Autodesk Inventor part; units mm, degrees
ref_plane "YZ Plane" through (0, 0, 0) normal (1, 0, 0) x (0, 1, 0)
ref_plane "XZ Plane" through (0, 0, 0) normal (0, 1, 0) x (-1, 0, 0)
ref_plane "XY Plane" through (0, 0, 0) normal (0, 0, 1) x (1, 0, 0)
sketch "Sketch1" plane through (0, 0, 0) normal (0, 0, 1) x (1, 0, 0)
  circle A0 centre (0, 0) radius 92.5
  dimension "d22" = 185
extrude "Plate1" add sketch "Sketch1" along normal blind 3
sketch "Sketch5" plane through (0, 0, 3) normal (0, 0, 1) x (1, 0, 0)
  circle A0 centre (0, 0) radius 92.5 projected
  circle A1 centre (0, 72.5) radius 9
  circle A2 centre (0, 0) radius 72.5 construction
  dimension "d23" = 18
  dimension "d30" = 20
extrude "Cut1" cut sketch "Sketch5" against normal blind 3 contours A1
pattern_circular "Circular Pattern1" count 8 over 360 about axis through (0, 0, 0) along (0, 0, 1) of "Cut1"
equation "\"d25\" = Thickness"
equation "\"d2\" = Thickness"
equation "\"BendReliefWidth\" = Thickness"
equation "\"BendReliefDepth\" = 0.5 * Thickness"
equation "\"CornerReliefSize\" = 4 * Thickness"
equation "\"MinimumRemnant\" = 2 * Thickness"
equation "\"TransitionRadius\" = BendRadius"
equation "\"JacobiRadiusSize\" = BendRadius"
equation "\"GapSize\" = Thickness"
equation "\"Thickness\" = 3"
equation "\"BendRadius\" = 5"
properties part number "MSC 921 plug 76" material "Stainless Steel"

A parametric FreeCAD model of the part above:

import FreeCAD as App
import Part
import Sketcher

V = App.Vector

doc = App.newDocument("Part")
body = doc.addObject("PartDesign::Body", "Body")

sketch1 = doc.addObject("Sketcher::SketchObject", "Sketch")
body.addObject(sketch1)
sketch1.AttachmentSupport = (doc.XY_Plane, [""])
sketch1.MapMode = "FlatFace"
sketch1.addGeometry(Part.Circle(V(0, 0, 0), V(0, 0, 1), 92.5), False)
sketch1.addConstraint([
    Sketcher.Constraint("Coincident", 0, 3, -1, 1),
    Sketcher.Constraint("Diameter", 0, 185.0),
])
pad1 = doc.addObject("PartDesign::Pad", "Pad")
body.addObject(pad1)
pad1.Profile = sketch1
pad1.Length = 3

sketch2 = doc.addObject("Sketcher::SketchObject", "Sketch001")
body.addObject(sketch2)
sketch2.AttachmentSupport = (doc.XY_Plane, [""])
sketch2.MapMode = "FlatFace"
sketch2.AttachmentOffset = App.Placement(V(0, 0, 3), App.Rotation())
sketch2.addGeometry(Part.Circle(V(0, 72.5, 0), V(0, 0, 1), 9), False)
sketch2.addConstraint([
    Sketcher.Constraint("PointOnObject", 0, 3, -2),
    Sketcher.Constraint("Diameter", 0, 18.0),
    Sketcher.Constraint("DistanceY", -1, 1, 0, 3, 72.5),
])
pocket1 = doc.addObject("PartDesign::Pocket", "Pocket")
body.addObject(pocket1)
pocket1.Profile = sketch2
pocket1.Length = 3
doc.recompute()

polarpattern = doc.addObject("PartDesign::PolarPattern", "PolarPattern")
body.addObject(polarpattern)
polarpattern.Originals = [pocket1]
polarpattern.Axis = (doc.Z_Axis, [""])
polarpattern.Angle = 360
polarpattern.Occurrences = 8
body.Tip = polarpattern

doc.recompute()
